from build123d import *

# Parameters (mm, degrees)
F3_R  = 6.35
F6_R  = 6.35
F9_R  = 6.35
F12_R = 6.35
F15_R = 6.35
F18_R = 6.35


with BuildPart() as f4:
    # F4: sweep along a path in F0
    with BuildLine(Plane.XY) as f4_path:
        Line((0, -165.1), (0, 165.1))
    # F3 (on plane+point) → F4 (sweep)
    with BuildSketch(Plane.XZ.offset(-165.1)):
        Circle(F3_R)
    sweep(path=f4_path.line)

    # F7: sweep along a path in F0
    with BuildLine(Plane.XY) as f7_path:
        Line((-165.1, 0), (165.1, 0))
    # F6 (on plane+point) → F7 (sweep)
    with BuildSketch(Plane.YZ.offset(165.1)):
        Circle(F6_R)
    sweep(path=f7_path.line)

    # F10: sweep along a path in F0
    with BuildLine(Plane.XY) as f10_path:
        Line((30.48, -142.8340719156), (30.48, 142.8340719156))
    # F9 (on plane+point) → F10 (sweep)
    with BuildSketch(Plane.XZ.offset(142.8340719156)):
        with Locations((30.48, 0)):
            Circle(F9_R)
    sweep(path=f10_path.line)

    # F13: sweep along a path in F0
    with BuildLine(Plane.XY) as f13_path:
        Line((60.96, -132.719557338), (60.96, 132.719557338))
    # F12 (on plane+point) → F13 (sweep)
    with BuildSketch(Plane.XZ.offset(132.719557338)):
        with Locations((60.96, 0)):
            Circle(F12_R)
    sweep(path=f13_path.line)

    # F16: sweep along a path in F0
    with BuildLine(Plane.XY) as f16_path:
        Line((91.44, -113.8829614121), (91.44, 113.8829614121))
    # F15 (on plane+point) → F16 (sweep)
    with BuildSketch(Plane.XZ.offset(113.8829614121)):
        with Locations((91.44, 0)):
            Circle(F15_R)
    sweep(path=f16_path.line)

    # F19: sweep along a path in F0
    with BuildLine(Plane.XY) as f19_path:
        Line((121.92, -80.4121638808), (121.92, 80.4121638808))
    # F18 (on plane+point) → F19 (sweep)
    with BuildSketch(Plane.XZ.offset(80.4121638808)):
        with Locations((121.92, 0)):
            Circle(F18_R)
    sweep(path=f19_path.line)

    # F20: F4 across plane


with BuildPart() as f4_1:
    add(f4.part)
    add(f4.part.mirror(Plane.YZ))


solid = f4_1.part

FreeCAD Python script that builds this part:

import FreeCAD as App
import Part
import Sketcher
Q = App.Units.Quantity

doc = App.newDocument("Part")
body = doc.addObject("PartDesign::Body", "Body")

# Sketch on XZ plane
sketch1 = body.newObject("Sketcher::SketchObject", "Sketch")
sketch1.AttachmentSupport = (doc.getObject("XZ_Plane"), [""])
sketch1.MapMode = "FlatFace"
sketch1.AttachmentOffset = App.Placement(App.Vector(0, 0, -6.5 * 25.4), App.Rotation())
sketch1.addGeometry(Part.Circle(App.Vector(0, 0, 0), App.Vector(0, 0, 1), 6), False)
sketch1.addConstraint([
    Sketcher.Constraint("Coincident", 0, 3, -1, 1),
    Sketcher.Constraint("Diameter", 0, Q("0.5 in")),
])

# Sketch on XY plane
sketch2 = body.newObject("Sketcher::SketchObject", "Sketch001")
sketch2.AttachmentSupport = (doc.getObject("XY_Plane"), [""])
sketch2.MapMode = "FlatFace"
sketch2.addGeometry(Part.LineSegment(App.Vector(0, -165, 0), App.Vector(0, 165, 0)), False)
sketch2.addConstraint([
    Sketcher.Constraint("Vertical", 0),
    Sketcher.Constraint("Symmetric", 0, 1, 0, 2, -1, 1),
    Sketcher.Constraint("DistanceY", 0, 1, 0, 2, Q("13 in")),
])
doc.recompute()

additivepipe = body.newObject("PartDesign::AdditivePipe", "AdditivePipe")
additivepipe.Profile = sketch1
additivepipe.Spine = (sketch2, ["Edge1"])

# Sketch on YZ plane
sketch3 = body.newObject("Sketcher::SketchObject", "Sketch002")
sketch3.AttachmentSupport = (doc.getObject("YZ_Plane"), [""])
sketch3.MapMode = "FlatFace"
sketch3.AttachmentOffset = App.Placement(App.Vector(0, 0, 6.5 * 25.4), App.Rotation())
sketch3.addGeometry(Part.Circle(App.Vector(0, 0, 0), App.Vector(0, 0, 1), 6), False)
sketch3.addConstraint([
    Sketcher.Constraint("Coincident", 0, 3, -1, 1),
    Sketcher.Constraint("Diameter", 0, Q("0.5 in")),
])

# Sketch on XY plane
sketch4 = body.newObject("Sketcher::SketchObject", "Sketch003")
sketch4.AttachmentSupport = (doc.getObject("XY_Plane"), [""])
sketch4.MapMode = "FlatFace"
sketch4.addGeometry(Part.LineSegment(App.Vector(-165, 0, 0), App.Vector(165, 0, 0)), False)
sketch4.addConstraint([
    Sketcher.Constraint("Horizontal", 0),
    Sketcher.Constraint("Symmetric", 0, 1, 0, 2, -1, 1),
    Sketcher.Constraint("DistanceX", 0, 1, 0, 2, Q("13 in")),
])
doc.recompute()

additivepipe2 = body.newObject("PartDesign::AdditivePipe", "AdditivePipe001")
additivepipe2.Profile = sketch3
additivepipe2.Spine = (sketch4, ["Edge1"])

# Sketch on XZ plane
sketch5 = body.newObject("Sketcher::SketchObject", "Sketch004")
sketch5.AttachmentSupport = (doc.getObject("XZ_Plane"), [""])
sketch5.MapMode = "FlatFace"
sketch5.AttachmentOffset = App.Placement(App.Vector(0, 0, 142.834072), App.Rotation())
sketch5.addGeometry(Part.Circle(App.Vector(30, 0, 0), App.Vector(0, 0, 1), 6), False)
sketch5.addConstraint([
    Sketcher.Constraint("PointOnObject", 0, 3, -1),
    Sketcher.Constraint("Diameter", 0, Q("0.5 in")),
    Sketcher.Constraint("DistanceX", -1, 1, 0, 3, Q("1.2 in")),
])

# Sketch on XY plane
sketch6 = body.newObject("Sketcher::SketchObject", "Sketch005")
sketch6.AttachmentSupport = (doc.getObject("XY_Plane"), [""])
sketch6.MapMode = "FlatFace"
sketch6.addGeometry(Part.LineSegment(App.Vector(30, -143, 0), App.Vector(30, 143, 0)), False)
sketch6.addConstraint([
    Sketcher.Constraint("Vertical", 0),
    Sketcher.Constraint("DistanceX", -1, 1, 0, 1, Q("1.2 in")),
    Sketcher.Constraint("DistanceY", 0, 1, 0, 2, Q("285.668144 mm")),
    Sketcher.Constraint("DistanceY", 0, 1, -1, 1, Q("142.834072 mm")),
])
doc.recompute()

additivepipe3 = body.newObject("PartDesign::AdditivePipe", "AdditivePipe002")
additivepipe3.Profile = sketch5
additivepipe3.Spine = (sketch6, ["Edge1"])

# Sketch on XZ plane
sketch7 = body.newObject("Sketcher::SketchObject", "Sketch006")
sketch7.AttachmentSupport = (doc.getObject("XZ_Plane"), [""])
sketch7.MapMode = "FlatFace"
sketch7.AttachmentOffset = App.Placement(App.Vector(0, 0, 132.719557), App.Rotation())
sketch7.addGeometry(Part.Circle(App.Vector(61, 0, 0), App.Vector(0, 0, 1), 6), False)
sketch7.addConstraint([
    Sketcher.Constraint("PointOnObject", 0, 3, -1),
    Sketcher.Constraint("Diameter", 0, Q("0.5 in")),
    Sketcher.Constraint("DistanceX", -1, 1, 0, 3, Q("2.4 in")),
])

# Sketch on XY plane
sketch8 = body.newObject("Sketcher::SketchObject", "Sketch007")
sketch8.AttachmentSupport = (doc.getObject("XY_Plane"), [""])
sketch8.MapMode = "FlatFace"
sketch8.addGeometry(Part.LineSegment(App.Vector(61, -133, 0), App.Vector(61, 133, 0)), False)
sketch8.addConstraint([
    Sketcher.Constraint("Vertical", 0),
    Sketcher.Constraint("DistanceX", -1, 1, 0, 1, Q("2.4 in")),
    Sketcher.Constraint("DistanceY", 0, 1, 0, 2, Q("265.439115 mm")),
    Sketcher.Constraint("DistanceY", 0, 1, -1, 1, Q("132.719557 mm")),
])
doc.recompute()

additivepipe4 = body.newObject("PartDesign::AdditivePipe", "AdditivePipe003")
additivepipe4.Profile = sketch7
additivepipe4.Spine = (sketch8, ["Edge1"])

# Sketch on XZ plane
sketch9 = body.newObject("Sketcher::SketchObject", "Sketch008")
sketch9.AttachmentSupport = (doc.getObject("XZ_Plane"), [""])
sketch9.MapMode = "FlatFace"
sketch9.AttachmentOffset = App.Placement(App.Vector(0, 0, 113.882961), App.Rotation())
sketch9.addGeometry(Part.Circle(App.Vector(91, 0, 0), App.Vector(0, 0, 1), 6), False)
sketch9.addConstraint([
    Sketcher.Constraint("PointOnObject", 0, 3, -1),
    Sketcher.Constraint("Diameter", 0, Q("0.5 in")),
    Sketcher.Constraint("DistanceX", -1, 1, 0, 3, Q("3.6 in")),
])

# Sketch on XY plane
sketch10 = body.newObject("Sketcher::SketchObject", "Sketch009")
sketch10.AttachmentSupport = (doc.getObject("XY_Plane"), [""])
sketch10.MapMode = "FlatFace"
sketch10.addGeometry(Part.LineSegment(App.Vector(91, -114, 0), App.Vector(91, 114, 0)), False)
sketch10.addConstraint([
    Sketcher.Constraint("Vertical", 0),
    Sketcher.Constraint("DistanceX", -1, 1, 0, 1, Q("3.6 in")),
    Sketcher.Constraint("DistanceY", 0, 1, 0, 2, Q("227.765923 mm")),
    Sketcher.Constraint("DistanceY", 0, 1, -1, 1, Q("113.882961 mm")),
])
doc.recompute()

additivepipe5 = body.newObject("PartDesign::AdditivePipe", "AdditivePipe004")
additivepipe5.Profile = sketch9
additivepipe5.Spine = (sketch10, ["Edge1"])

# Sketch on XZ plane
sketch11 = body.newObject("Sketcher::SketchObject", "Sketch010")
sketch11.AttachmentSupport = (doc.getObject("XZ_Plane"), [""])
sketch11.MapMode = "FlatFace"
sketch11.AttachmentOffset = App.Placement(App.Vector(0, 0, 80.412164), App.Rotation())
sketch11.addGeometry(Part.Circle(App.Vector(122, 0, 0), App.Vector(0, 0, 1), 6), False)
sketch11.addConstraint([
    Sketcher.Constraint("PointOnObject", 0, 3, -1),
    Sketcher.Constraint("Diameter", 0, Q("0.5 in")),
    Sketcher.Constraint("DistanceX", -1, 1, 0, 3, Q("4.8 in")),
])

# Sketch on XY plane
sketch12 = body.newObject("Sketcher::SketchObject", "Sketch011")
sketch12.AttachmentSupport = (doc.getObject("XY_Plane"), [""])
sketch12.MapMode = "FlatFace"
sketch12.addGeometry(Part.LineSegment(App.Vector(122, -80, 0), App.Vector(122, 80, 0)), False)
sketch12.addConstraint([
    Sketcher.Constraint("Vertical", 0),
    Sketcher.Constraint("DistanceX", -1, 1, 0, 1, Q("4.8 in")),
    Sketcher.Constraint("DistanceY", 0, 1, 0, 2, Q("160.824328 mm")),
    Sketcher.Constraint("DistanceY", 0, 1, -1, 1, Q("80.412164 mm")),
])
doc.recompute()

additivepipe6 = body.newObject("PartDesign::AdditivePipe", "AdditivePipe005")
additivepipe6.Profile = sketch11
additivepipe6.Spine = (sketch12, ["Edge1"])
body2 = doc.addObject("PartDesign::Body", "Body001")
doc.recompute()

body2.BaseFeature = body
doc.recompute()

mirroring = doc.addObject("Part::Mirroring", "Mirroring")
mirroring.Source = body
mirroring.Base = App.Vector(0, 0, 0)
mirroring.Normal = App.Vector(1, 0, 0)
body3 = doc.addObject("PartDesign::Body", "Body002")
body3.BaseFeature = mirroring
boolean = body2.newObject("PartDesign::Boolean", "Boolean")
boolean.Type = "Fuse"
boolean.addObjects([body3])
doc.recompute()
mirroring.Visibility = False

doc.recompute()
